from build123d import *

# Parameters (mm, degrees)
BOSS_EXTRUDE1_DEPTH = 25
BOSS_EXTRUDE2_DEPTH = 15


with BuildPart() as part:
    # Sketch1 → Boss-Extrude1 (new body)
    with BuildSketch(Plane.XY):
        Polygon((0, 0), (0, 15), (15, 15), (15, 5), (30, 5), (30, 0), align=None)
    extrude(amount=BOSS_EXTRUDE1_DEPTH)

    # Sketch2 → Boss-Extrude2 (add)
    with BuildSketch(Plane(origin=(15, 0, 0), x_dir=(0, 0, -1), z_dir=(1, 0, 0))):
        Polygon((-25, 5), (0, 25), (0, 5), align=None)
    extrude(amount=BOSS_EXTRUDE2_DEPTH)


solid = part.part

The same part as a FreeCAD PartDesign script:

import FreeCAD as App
import Part
import Sketcher
from FreeCAD import Vector
Q = App.Units.Quantity

doc = App.newDocument("Part")
body = doc.addObject("PartDesign::Body", "Body")

# Sketch on XY plane
sketch1 = doc.addObject("Sketcher::SketchObject", "Sketch")
body.addObject(sketch1)
sketch1.AttachmentSupport = (doc.XY_Plane, [""])
sketch1.MapMode = "FlatFace"
sketch1.addGeometry([
    Part.LineSegment(Vector(0, 15, 0), Vector(0, 0, 0)),  # 0
    Part.LineSegment(Vector(0, 0, 0), Vector(30, 0, 0)),  # 1
    Part.LineSegment(Vector(30, 0, 0), Vector(30, 5, 0)),  # 2
    Part.LineSegment(Vector(30, 5, 0), Vector(15, 5, 0)),  # 3
    Part.LineSegment(Vector(15, 5, 0), Vector(15, 15, 0)),  # 4
    Part.LineSegment(Vector(15, 15, 0), Vector(0, 15, 0)),  # 5
], False)
sketch1.addConstraint([
    Sketcher.Constraint("Coincident", 0, 2, 1, 1),
    Sketcher.Constraint("Coincident", 1, 2, 2, 1),
    Sketcher.Constraint("Coincident", 2, 2, 3, 1),
    Sketcher.Constraint("Coincident", 3, 2, 4, 1),
    Sketcher.Constraint("Coincident", 4, 2, 5, 1),
    Sketcher.Constraint("Coincident", 5, 2, 0, 1),
    Sketcher.Constraint("Vertical", 0),
    Sketcher.Constraint("Horizontal", 1),
    Sketcher.Constraint("Vertical", 2),
    Sketcher.Constraint("Horizontal", 3),
    Sketcher.Constraint("Vertical", 4),
    Sketcher.Constraint("Horizontal", 5),
    Sketcher.Constraint("Coincident", 0, 2, -1, 1),
    Sketcher.Constraint("Equal", 3, 5),
    Sketcher.Constraint("Equal", 5, 0),
    Sketcher.Constraint("DistanceX", 1, 1, 1, 2, Q("30 mm")),
    Sketcher.Constraint("DistanceY", 2, 1, 2, 2, Q("5 mm")),
])
pad1 = doc.addObject("PartDesign::Pad", "Pad")
body.addObject(pad1)
pad1.Profile = sketch1
pad1.Length = 25

# Sketch on YZ plane
sketch2 = doc.addObject("Sketcher::SketchObject", "Sketch001")
body.addObject(sketch2)
sketch2.AttachmentSupport = (doc.YZ_Plane, [""])
sketch2.MapMode = "FlatFace"
sketch2.AttachmentOffset = App.Placement(Vector(0, 0, 15), App.Rotation())
sketch2.addGeometry([
    Part.LineSegment(Vector(25, 0, 0), Vector(5, 25, 0)),
    Part.LineSegment(Vector(5, 25, 0), Vector(5, 0, 0)),
    Part.LineSegment(Vector(5, 0, 0), Vector(25, 0, 0)),
], False)
sketch2.addConstraint([
    Sketcher.Constraint("Coincident", 0, 2, 1, 1),
    Sketcher.Constraint("Coincident", 1, 2, 2, 1),
    Sketcher.Constraint("Coincident", 2, 2, 0, 1),
    Sketcher.Constraint("Vertical", 1),
    Sketcher.Constraint("Horizontal", 2),
    Sketcher.Constraint("PointOnObject", 1, 2, -1),
    Sketcher.Constraint("DistanceX", 2, 1, 2, 2, Q("20 mm")),
    Sketcher.Constraint("DistanceY", 1, 2, 1, 1, Q("25 mm")),
    Sketcher.Constraint("DistanceX", -1, 1, 0, 2, Q("5 mm")),
])
pad2 = doc.addObject("PartDesign::Pad", "Pad001")
body.addObject(pad2)
pad2.Profile = sketch2
pad2.Length = 15

doc.recompute()
